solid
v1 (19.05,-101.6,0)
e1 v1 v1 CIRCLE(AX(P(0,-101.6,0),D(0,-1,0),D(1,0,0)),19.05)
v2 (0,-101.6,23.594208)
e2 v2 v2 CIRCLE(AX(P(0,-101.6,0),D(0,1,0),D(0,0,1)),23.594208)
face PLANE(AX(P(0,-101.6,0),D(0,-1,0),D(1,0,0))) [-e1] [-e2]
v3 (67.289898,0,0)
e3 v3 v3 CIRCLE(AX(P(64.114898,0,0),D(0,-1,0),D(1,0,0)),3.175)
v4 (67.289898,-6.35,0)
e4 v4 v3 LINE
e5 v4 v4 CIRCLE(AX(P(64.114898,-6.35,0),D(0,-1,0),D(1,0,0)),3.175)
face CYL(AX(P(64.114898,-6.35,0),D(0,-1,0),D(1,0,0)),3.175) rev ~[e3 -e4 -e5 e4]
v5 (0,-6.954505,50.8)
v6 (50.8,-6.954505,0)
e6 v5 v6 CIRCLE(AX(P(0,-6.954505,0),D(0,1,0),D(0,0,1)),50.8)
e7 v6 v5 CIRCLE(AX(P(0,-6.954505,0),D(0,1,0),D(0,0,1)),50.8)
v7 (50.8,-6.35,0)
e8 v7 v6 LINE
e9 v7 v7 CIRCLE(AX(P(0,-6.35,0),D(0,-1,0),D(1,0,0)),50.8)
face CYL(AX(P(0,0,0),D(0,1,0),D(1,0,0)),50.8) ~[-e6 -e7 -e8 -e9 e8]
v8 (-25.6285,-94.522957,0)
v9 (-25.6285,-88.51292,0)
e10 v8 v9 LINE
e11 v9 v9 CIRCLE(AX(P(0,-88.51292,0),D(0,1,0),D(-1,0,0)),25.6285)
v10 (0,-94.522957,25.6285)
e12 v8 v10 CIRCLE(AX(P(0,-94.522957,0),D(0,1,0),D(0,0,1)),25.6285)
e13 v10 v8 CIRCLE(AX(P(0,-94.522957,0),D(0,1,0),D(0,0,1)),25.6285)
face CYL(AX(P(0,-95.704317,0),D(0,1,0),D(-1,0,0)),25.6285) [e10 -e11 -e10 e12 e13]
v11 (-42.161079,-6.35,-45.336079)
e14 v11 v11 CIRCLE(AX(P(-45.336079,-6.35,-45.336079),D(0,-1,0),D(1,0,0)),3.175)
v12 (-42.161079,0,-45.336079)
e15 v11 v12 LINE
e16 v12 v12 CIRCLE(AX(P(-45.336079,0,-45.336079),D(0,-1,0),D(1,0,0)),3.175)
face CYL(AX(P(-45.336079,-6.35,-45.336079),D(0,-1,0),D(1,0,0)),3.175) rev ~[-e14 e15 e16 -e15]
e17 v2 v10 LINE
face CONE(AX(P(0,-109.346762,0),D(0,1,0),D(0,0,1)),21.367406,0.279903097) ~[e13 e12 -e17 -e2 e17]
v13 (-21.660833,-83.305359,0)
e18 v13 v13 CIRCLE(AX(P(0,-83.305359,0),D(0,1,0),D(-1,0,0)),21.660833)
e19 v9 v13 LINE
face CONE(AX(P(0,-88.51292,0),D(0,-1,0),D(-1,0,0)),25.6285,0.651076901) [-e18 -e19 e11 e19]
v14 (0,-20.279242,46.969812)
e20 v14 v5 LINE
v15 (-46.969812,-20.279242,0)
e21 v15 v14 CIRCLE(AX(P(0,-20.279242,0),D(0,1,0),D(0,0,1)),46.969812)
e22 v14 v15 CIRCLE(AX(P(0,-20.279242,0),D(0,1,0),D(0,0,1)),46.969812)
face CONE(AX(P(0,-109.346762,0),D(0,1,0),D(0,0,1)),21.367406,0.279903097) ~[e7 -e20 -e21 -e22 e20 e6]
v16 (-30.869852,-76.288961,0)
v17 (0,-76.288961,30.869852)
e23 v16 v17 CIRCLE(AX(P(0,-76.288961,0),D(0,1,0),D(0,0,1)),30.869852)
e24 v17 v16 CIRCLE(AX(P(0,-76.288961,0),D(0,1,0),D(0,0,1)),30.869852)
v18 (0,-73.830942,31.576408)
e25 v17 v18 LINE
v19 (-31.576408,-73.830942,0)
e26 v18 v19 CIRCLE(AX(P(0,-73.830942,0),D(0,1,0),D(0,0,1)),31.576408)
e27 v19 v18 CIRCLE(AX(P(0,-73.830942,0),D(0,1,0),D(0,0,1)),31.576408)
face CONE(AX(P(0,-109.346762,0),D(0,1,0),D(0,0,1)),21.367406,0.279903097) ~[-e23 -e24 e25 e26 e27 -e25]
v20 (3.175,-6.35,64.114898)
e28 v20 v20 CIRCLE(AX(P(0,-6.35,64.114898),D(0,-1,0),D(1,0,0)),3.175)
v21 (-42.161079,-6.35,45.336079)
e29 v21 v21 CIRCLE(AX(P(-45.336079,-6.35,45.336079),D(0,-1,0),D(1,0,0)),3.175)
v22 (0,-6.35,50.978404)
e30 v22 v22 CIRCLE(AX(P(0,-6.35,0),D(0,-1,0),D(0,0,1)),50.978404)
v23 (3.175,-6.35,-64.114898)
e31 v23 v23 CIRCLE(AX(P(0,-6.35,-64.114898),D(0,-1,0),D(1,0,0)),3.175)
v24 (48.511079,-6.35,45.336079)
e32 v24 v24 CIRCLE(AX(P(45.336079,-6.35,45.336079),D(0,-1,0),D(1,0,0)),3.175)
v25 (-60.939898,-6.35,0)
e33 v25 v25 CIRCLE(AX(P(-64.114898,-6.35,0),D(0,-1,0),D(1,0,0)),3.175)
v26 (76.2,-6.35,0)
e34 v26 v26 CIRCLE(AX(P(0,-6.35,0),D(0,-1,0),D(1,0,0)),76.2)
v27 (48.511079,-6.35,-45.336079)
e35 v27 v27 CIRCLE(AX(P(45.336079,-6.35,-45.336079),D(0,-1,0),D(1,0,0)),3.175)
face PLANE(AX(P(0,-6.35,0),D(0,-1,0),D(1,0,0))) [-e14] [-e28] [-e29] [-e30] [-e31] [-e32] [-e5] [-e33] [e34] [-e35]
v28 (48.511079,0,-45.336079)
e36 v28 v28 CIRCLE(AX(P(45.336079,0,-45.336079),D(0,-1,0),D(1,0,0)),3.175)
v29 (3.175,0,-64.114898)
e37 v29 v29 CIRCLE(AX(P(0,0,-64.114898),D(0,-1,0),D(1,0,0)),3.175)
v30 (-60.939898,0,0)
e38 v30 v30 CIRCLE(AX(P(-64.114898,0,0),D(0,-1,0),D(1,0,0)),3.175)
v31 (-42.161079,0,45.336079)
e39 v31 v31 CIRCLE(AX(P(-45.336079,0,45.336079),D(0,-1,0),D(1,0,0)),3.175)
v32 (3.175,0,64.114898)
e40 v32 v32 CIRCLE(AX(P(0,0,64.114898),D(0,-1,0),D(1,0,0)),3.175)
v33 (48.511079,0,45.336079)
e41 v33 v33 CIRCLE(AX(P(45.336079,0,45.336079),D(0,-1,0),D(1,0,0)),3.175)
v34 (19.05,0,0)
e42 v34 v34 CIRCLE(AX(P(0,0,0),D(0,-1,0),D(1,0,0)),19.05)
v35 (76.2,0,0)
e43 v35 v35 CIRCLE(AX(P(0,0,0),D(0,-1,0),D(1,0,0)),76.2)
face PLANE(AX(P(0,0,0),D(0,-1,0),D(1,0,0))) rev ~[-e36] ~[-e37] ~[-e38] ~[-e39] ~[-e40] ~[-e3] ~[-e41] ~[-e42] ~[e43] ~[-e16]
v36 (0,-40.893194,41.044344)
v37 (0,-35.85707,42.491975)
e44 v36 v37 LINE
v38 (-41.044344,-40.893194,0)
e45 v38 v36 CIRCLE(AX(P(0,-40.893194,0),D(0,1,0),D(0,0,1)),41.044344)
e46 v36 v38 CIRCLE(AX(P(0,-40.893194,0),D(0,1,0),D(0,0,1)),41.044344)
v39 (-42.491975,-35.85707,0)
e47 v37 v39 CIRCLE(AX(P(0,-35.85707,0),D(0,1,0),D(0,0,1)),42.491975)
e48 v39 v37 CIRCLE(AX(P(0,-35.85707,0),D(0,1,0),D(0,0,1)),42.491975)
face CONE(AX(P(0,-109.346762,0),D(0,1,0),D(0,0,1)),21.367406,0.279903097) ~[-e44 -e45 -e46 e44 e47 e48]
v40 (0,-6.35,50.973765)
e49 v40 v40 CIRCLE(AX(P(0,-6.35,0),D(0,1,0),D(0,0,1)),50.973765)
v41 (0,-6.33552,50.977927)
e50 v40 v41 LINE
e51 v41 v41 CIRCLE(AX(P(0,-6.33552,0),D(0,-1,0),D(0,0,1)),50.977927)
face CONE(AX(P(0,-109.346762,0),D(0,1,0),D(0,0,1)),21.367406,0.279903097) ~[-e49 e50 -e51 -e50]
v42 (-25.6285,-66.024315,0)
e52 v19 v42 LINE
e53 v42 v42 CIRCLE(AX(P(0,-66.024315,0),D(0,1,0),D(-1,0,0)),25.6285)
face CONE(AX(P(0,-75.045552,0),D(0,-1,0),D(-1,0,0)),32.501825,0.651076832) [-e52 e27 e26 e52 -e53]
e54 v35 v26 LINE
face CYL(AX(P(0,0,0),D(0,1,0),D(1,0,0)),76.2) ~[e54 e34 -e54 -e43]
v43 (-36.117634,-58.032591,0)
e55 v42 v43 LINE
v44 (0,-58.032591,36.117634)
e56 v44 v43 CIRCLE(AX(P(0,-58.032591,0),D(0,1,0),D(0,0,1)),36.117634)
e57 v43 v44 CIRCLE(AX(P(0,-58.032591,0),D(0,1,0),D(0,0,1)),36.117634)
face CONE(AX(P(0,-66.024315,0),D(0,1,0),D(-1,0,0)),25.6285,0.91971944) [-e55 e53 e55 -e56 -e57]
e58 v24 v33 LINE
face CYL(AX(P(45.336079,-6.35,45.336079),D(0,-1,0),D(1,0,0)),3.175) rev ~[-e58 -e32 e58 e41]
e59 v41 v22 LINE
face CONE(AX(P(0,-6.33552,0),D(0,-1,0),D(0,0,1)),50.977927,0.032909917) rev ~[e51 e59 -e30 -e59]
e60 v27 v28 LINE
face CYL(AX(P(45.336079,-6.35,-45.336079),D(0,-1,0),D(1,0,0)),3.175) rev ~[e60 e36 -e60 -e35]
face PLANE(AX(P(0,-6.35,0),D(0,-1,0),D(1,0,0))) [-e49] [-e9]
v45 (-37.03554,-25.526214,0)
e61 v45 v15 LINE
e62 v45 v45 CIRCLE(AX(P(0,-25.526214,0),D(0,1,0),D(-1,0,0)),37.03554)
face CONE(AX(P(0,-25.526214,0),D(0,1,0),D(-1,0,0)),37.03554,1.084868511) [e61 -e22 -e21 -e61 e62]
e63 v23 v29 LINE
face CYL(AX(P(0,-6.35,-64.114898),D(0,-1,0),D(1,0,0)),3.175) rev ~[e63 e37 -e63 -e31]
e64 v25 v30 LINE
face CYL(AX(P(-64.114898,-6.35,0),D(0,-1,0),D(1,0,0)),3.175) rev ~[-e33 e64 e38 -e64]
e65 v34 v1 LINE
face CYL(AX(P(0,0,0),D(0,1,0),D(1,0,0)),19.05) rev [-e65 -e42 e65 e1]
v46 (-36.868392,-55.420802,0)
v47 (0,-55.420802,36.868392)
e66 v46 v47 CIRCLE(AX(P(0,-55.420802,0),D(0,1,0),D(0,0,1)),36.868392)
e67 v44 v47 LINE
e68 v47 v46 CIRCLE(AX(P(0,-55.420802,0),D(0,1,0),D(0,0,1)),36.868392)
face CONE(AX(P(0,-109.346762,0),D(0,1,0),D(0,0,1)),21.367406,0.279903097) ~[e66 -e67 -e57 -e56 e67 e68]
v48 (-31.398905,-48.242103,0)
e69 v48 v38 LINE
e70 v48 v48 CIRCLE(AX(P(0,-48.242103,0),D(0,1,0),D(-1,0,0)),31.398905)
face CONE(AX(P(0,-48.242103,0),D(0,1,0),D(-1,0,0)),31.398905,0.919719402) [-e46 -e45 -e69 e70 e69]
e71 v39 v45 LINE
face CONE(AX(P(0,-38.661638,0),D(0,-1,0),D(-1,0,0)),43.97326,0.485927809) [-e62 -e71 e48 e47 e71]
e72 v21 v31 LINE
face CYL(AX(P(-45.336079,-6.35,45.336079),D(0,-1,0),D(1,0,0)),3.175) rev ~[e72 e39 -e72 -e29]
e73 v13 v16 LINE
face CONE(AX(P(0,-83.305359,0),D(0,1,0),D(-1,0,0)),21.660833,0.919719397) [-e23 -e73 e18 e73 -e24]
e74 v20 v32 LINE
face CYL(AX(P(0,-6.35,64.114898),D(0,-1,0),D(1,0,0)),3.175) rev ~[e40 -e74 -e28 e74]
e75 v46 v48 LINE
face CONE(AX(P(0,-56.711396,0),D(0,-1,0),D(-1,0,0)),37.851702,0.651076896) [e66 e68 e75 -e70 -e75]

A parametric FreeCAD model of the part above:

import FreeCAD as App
import Part
import Sketcher
Q = App.Units.Quantity


def add_polygon(sketch, points):
    """Adds a closed chain of lines whose ends are joined by coincident constraints."""
    first, n = sketch.GeometryCount, len(points)
    for a, b in zip(points, points[1:] + points[:1]):
        sketch.addGeometry(Part.LineSegment(App.Vector(*a, 0), App.Vector(*b, 0)), False)
    for i in range(n):
        sketch.addConstraint(Sketcher.Constraint("Coincident", first + i, 2, first + (i + 1) % n, 1))

doc = App.newDocument("Part")
body = doc.addObject("PartDesign::Body", "Body")

sketch1 = body.newObject("Sketcher::SketchObject", "Sketch")
sketch1.AttachmentSupport = (doc.getObject("XZ_Plane"), [""])
sketch1.MapMode = "FlatFace"
sketch1.addGeometry([
    Part.Circle(App.Vector(0, 0, 0), App.Vector(0, 0, 1), 50.8),
    Part.Circle(App.Vector(0, 0, 0), App.Vector(0, 0, 1), 19.05),
], False)
sketch1.addConstraint([
    Sketcher.Constraint("Coincident", 0, 3, -1, 1),
    Sketcher.Constraint("Coincident", 1, 3, -1, 1),
    Sketcher.Constraint("Diameter", 0, Q("4 in")),
    Sketcher.Constraint("Diameter", 1, Q("1.5 in")),
])
pad1 = body.newObject("PartDesign::Pad", "Pad")
pad1.Profile = sketch1
pad1.Length = Q("4 in")

sketch2 = body.newObject("Sketcher::SketchObject", "Sketch001")
sketch2.AttachmentSupport = (doc.getObject("XZ_Plane"), [""])
sketch2.MapMode = "FlatFace"
sketch2.addGeometry([
    Part.Circle(App.Vector(0, 0, 0), App.Vector(0, 0, 1), 76.2),
    Part.Circle(App.Vector(0, 0, 0), App.Vector(0, 0, 1), 50.8),
], False)
sketch2.addConstraint([
    Sketcher.Constraint("Coincident", 0, 3, -1, 1),
    Sketcher.Constraint("Coincident", 1, 3, -1, 1),
    Sketcher.Constraint("Diameter", 0, Q("6 in")),
    Sketcher.Constraint("Diameter", 1, Q("4 in")),
])
pad2 = body.newObject("PartDesign::Pad", "Pad001")
pad2.Profile = sketch2
pad2.Length = Q("0.25 in")

sketch3 = body.newObject("Sketcher::SketchObject", "Sketch002")
sketch3.AttachmentSupport = (doc.getObject("YZ_Plane"), [""])
sketch3.MapMode = "FlatFace"
add_polygon(sketch3, [(-109.346762, 21.367406), (-6.33552, 50.977927), (-107.67857, 54.314323)])
sketch3.addConstraint([
    Sketcher.Constraint("Distance", 0, 107.18255),
    Sketcher.Constraint("DistanceX", 0, 2, -1, 1, 6.33552),
    Sketcher.Constraint("DistanceX", 1, 2, -1, 1, 107.67857),
    Sketcher.Constraint("DistanceX", 2, 2, -1, 1, 109.346762),
    Sketcher.Constraint("Distance", 1, 101.397955),
    Sketcher.Constraint("DistanceY", -1, 1, 0, 2, 50.977927),
])
groove = body.newObject("PartDesign::Groove", "Groove")
groove.Profile = sketch3
groove.ReferenceAxis = (sketch3, ["H_Axis"])
groove.Angle = 360

sketch4 = body.newObject("Sketcher::SketchObject", "Sketch003")
sketch4.AttachmentSupport = (doc.getObject("XY_Plane"), [""])
sketch4.MapMode = "FlatFace"
add_polygon(sketch4, [(-55.385999, -52.059986), (-25.6285, -95.704317), (-25.6285, -88.51292), (-21.660833, -83.305359), (-32.501825, -75.045552), (-25.6285, -66.024315), (-37.851702, -56.711396), (-31.398905, -48.242103), (-43.97326, -38.661638), (-37.03554, -25.526214), (-49.323034, -19.036344), (-52.410249, -6.6798)])
sketch4.addConstraint([
    Sketcher.Constraint("Vertical", 1),
    Sketcher.Constraint("Perpendicular", 2, 3),
    Sketcher.Constraint("Perpendicular", 3, 4),
    Sketcher.Constraint("Perpendicular", 4, 5),
    Sketcher.Constraint("Perpendicular", 5, 6),
    Sketcher.Constraint("Perpendicular", 6, 7),
    Sketcher.Constraint("Perpendicular", 8, 9),
    Sketcher.Constraint("Vertical", 1, 2, 4, 2),
    Sketcher.Constraint("DistanceX", 0, 2, -1, 1, 25.6285),
    Sketcher.Constraint("DistanceY", 10, 2, -1, 1, 6.6798),
    Sketcher.Constraint("DistanceX", 11, 2, -1, 1, 55.385999),
    Sketcher.Constraint("DistanceY", 4, 2, 8, 2, 40.498101),
    Sketcher.Constraint("Distance", 3, 13.629069),
    Sketcher.Constraint("Distance", 4, 11.34131),
    Sketcher.Constraint("Distance", 6, 10.647418),
    Sketcher.Constraint("Distance", 8, 14.85501),
    Sketcher.Constraint("Distance", 10, 12.736368),
    Sketcher.Constraint("DistanceY", 1, 1, 1, 2, 7.191397),
    Sketcher.Constraint("DistanceY", 1, 2, -1, 1, 88.51292),
    Sketcher.Constraint("DistanceY", 2, 2, -1, 1, 83.305359),
    Sketcher.Constraint("DistanceX", 7, 2, -1, 1, 43.97326),
    Sketcher.Constraint("DistanceX", 10, 2, -1, 1, 52.410249),
    Sketcher.Constraint("DistanceY", 4, 2, 5, 2, 9.312919),
    Sketcher.Constraint("DistanceY", 5, 2, 11, 2, 4.65141),
])
groove2 = body.newObject("PartDesign::Groove", "Groove001")
groove2.Profile = sketch4
groove2.ReferenceAxis = (sketch4, ["V_Axis"])
groove2.Angle = 360

sketch5 = body.newObject("Sketcher::SketchObject", "Sketch004")
sketch5.AttachmentSupport = (doc.getObject("XZ_Plane"), [""])
sketch5.MapMode = "FlatFace"
sketch5.AttachmentOffset = App.Placement(App.Vector(0, 0, 0.25 * 25.4), App.Rotation())
sketch5.addGeometry([
    Part.Circle(App.Vector(0, 64.114898, 0), App.Vector(0, 0, 1), 3.175),
    Part.Circle(App.Vector(45.336079, 45.336079, 0), App.Vector(0, 0, 1), 3.175),
    Part.Circle(App.Vector(-45.336079, 45.336079, 0), App.Vector(0, 0, 1), 3.175),
    Part.Circle(App.Vector(-64.114898, 0, 0), App.Vector(0, 0, 1), 3.175),
    Part.Circle(App.Vector(64.114898, 0, 0), App.Vector(0, 0, 1), 3.175),
    Part.Circle(App.Vector(45.336079, -45.336079, 0), App.Vector(0, 0, 1), 3.175),
    Part.Circle(App.Vector(0, -64.114898, 0), App.Vector(0, 0, 1), 3.175),
    Part.Circle(App.Vector(-45.336079, -45.336079, 0), App.Vector(0, 0, 1), 3.175),
], False)
sketch5.addConstraint([
    Sketcher.Constraint("Equal", 0, 1),
    Sketcher.Constraint("Equal", 1, 2),
    Sketcher.Constraint("Equal", 2, 3),
    Sketcher.Constraint("Equal", 3, 4),
    Sketcher.Constraint("Equal", 4, 5),
    Sketcher.Constraint("Equal", 5, 6),
    Sketcher.Constraint("Equal", 6, 7),
    Sketcher.Constraint("Symmetric", 3, 3, 4, 3, -1, 1),
    Sketcher.Constraint("Symmetric", 2, 3, 5, 3, -1, 1),
    Sketcher.Constraint("Symmetric", 0, 3, 6, 3, -1, 1),
    Sketcher.Constraint("Symmetric", 1, 3, 7, 3, -1, 1),
    Sketcher.Constraint("Symmetric", 1, 3, 2, 3, -2),
    Sketcher.Constraint("PointOnObject", 0, 3, -2),
    Sketcher.Constraint("PointOnObject", 3, 3, -1),
    Sketcher.Constraint("Diameter", 0, Q("0.25 in")),
    Sketcher.Constraint("DistanceX", -1, 1, 1, 3, 45.336079),
    Sketcher.Constraint("DistanceY", -1, 1, 1, 3, 45.336079),
    Sketcher.Constraint("DistanceY", 1, 3, 0, 3, 18.778819),
    Sketcher.Constraint("DistanceX", 3, 3, 2, 3, 18.778819),
])
pocket1 = body.newObject("PartDesign::Pocket", "Pocket")
pocket1.Profile = sketch5
pocket1.Length = Q("1 in")

doc.recompute()
